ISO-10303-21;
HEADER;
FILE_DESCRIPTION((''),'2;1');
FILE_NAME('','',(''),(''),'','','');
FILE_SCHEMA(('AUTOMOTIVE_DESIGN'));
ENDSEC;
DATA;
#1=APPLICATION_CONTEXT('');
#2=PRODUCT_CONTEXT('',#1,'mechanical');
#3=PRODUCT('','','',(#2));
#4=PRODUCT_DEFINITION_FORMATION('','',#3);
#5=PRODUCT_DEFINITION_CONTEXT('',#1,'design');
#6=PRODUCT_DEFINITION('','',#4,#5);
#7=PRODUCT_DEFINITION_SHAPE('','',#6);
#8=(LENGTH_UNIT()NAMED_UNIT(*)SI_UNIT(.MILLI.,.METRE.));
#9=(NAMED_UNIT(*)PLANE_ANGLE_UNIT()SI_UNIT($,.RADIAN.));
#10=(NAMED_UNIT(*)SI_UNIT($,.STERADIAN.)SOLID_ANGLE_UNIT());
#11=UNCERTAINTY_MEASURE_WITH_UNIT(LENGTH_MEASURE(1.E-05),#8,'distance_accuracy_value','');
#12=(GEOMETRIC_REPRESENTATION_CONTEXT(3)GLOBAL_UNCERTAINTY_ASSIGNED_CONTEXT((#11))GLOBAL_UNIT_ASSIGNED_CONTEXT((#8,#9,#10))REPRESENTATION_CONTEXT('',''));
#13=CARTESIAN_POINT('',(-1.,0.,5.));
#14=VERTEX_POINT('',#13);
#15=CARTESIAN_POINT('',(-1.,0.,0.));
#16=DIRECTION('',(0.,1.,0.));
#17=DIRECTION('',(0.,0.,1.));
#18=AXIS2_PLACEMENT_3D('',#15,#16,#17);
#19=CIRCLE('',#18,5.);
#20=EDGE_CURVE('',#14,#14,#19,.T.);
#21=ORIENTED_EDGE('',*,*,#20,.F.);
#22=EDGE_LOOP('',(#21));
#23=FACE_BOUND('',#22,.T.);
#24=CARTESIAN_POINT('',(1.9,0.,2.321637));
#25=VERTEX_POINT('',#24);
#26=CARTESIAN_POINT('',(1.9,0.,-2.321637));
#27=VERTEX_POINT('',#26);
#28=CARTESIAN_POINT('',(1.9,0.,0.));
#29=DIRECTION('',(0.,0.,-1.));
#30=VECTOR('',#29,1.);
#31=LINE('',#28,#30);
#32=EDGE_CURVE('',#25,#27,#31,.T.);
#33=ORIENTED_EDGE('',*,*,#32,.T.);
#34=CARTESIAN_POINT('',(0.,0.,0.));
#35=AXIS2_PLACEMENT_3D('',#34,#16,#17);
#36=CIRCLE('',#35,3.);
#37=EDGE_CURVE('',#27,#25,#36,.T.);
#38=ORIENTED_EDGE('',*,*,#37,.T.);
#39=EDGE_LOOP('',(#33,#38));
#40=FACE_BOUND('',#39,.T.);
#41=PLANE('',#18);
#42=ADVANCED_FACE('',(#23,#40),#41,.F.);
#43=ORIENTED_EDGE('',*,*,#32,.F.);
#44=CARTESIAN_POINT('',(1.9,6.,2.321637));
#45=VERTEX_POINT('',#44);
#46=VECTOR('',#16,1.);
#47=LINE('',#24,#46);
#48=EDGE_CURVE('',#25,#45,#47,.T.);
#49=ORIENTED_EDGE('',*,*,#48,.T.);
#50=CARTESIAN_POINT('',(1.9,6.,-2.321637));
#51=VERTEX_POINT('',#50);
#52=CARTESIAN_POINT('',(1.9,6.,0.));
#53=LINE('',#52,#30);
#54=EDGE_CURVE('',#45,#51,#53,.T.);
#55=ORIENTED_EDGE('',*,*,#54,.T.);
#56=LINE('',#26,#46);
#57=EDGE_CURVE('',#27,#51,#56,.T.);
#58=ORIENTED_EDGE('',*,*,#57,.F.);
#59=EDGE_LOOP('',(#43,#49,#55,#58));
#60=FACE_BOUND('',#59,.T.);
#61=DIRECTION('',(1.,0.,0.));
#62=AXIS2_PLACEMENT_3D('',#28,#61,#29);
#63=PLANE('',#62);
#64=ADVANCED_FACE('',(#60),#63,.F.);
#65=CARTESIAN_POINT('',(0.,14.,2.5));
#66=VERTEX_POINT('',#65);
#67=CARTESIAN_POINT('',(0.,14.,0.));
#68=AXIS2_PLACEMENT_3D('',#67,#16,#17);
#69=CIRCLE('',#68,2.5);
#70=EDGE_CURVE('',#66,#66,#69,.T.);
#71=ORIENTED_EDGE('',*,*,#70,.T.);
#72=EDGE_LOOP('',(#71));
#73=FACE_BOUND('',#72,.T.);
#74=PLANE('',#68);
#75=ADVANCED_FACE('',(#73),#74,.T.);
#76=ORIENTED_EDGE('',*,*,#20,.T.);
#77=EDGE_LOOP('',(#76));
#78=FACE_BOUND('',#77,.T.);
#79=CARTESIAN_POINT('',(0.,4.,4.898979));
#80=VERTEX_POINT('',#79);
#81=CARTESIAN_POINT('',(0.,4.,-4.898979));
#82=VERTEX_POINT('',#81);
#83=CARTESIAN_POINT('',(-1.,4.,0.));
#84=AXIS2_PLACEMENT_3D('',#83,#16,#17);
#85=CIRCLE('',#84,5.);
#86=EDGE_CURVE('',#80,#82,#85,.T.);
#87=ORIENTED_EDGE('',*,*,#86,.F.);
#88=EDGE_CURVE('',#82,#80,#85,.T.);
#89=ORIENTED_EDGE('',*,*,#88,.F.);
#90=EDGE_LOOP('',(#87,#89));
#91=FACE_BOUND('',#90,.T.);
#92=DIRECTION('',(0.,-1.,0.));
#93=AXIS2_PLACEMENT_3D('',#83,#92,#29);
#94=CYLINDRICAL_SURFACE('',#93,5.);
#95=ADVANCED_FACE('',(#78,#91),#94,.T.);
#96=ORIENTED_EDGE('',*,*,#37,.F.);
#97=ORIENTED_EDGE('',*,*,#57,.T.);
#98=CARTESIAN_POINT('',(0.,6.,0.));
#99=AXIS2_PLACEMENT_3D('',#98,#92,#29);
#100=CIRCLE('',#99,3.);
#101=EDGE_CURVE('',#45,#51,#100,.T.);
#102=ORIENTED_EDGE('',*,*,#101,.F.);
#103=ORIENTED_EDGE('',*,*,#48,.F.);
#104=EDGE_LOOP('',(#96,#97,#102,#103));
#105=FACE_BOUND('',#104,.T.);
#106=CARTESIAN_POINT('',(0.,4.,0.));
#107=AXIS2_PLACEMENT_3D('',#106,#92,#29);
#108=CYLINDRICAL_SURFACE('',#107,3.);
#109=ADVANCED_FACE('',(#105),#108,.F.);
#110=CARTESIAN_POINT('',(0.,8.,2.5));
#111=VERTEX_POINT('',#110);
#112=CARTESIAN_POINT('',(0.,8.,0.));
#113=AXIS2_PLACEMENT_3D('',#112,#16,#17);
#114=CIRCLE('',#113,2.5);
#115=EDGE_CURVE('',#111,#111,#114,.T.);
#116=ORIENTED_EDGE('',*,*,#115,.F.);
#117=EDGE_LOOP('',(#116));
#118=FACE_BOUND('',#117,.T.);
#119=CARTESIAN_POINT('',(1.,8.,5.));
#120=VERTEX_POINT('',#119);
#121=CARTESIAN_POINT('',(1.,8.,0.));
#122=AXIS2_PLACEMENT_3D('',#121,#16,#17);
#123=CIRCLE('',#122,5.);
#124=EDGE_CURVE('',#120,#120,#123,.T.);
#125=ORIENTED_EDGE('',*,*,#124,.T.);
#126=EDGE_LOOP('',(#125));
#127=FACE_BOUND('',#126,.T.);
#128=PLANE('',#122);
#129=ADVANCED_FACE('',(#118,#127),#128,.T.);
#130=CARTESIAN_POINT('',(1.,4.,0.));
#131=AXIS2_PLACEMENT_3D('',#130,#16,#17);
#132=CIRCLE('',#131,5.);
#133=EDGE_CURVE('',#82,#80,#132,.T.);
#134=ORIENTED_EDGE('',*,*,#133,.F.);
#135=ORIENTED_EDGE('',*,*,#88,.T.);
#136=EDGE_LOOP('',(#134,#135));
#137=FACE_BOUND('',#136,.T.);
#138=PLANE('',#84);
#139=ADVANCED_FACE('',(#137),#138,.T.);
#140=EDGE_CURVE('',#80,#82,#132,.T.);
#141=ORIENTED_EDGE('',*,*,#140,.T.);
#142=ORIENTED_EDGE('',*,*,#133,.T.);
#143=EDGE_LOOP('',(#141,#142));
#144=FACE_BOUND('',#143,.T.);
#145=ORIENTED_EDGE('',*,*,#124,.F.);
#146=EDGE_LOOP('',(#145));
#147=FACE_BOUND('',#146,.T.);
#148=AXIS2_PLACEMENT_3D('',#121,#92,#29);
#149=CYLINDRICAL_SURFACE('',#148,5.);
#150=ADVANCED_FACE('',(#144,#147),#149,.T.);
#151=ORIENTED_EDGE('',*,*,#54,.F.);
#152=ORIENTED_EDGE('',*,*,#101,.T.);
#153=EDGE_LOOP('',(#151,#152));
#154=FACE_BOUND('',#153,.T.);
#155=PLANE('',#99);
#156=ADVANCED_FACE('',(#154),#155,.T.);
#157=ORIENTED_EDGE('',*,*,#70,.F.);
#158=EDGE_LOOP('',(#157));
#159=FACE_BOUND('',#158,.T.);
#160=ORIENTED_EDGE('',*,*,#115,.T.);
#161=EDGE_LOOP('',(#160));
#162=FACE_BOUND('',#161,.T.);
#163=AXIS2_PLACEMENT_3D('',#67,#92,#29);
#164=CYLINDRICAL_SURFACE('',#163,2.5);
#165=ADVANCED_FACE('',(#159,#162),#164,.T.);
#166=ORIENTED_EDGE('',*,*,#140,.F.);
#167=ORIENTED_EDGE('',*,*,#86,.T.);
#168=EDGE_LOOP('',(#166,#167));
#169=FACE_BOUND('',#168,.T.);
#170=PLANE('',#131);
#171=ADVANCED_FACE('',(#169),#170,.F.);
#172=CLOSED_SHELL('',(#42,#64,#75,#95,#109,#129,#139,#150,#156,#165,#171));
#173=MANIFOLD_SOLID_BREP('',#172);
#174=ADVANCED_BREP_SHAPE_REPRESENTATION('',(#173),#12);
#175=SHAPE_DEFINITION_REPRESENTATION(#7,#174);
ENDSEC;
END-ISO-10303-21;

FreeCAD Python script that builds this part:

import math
import FreeCAD as App
import Part
import Sketcher
from FreeCAD import Vector

doc = App.newDocument("Part")
params = doc.addObject("Spreadsheet::Sheet", "Params")
for row, (alias, value) in enumerate([
    ("sketch1_diameter", "10 mm"),
    ("sketch1_diameter2", "6 mm"),
    ("pad1_length", "4 mm"),
    ("sketch2_diameter", "10 mm"),
    ("pad2_length", "4 mm"),
    ("sketch3_diameter", "5 mm"),
    ("pad3_length", "6 mm"),
    ("sketch4_diameter", "6 mm"),
    ("pocket1_length", "2 mm"),
    ("sketch5_radius", "3 mm"),
    ("pad4_length", "6 mm"),
], start=1):
    params.set(f"A{row}", alias)
    params.set(f"B{row}", "=" + value)
    params.setAlias(f"B{row}", alias)

body = doc.addObject("PartDesign::Body", "Body")

# Sketch on XZ plane
sketch1 = body.newObject("Sketcher::SketchObject", "Sketch")
sketch1.AttachmentSupport = (doc.getObject("XZ_Plane"), [""])
sketch1.MapMode = "FlatFace"
sketch1.addGeometry(Part.Circle(Vector(-1, 0, 0), Vector(0, 0, 1), 5), False)
sketch1.addGeometry(Part.Circle(Vector(0, 0, 0), Vector(0, 0, 1), 3), False)
sketch1.addConstraint(Sketcher.Constraint("Coincident", 1, 3, -1, 1))
sketch1.addConstraint(Sketcher.Constraint("PointOnObject", 0, 3, -1))
sketch1.addConstraint(Sketcher.Constraint("Diameter", 0, 10.0))
sketch1.addConstraint(Sketcher.Constraint("Diameter", 1, 6.0))
sketch1.addConstraint(Sketcher.Constraint("DistanceX", 0, 3, -1, 1, 1.0))
sketch1.setExpression("Constraints[2]", "Params.sketch1_diameter")
sketch1.setExpression("Constraints[3]", "Params.sketch1_diameter2")
pad1 = body.newObject("PartDesign::Pad", "Pad")
pad1.Profile = sketch1
pad1.setExpression("Length", "Params.pad1_length")
pad1.Reversed = True

# Sketch on XZ plane
sketch2 = body.newObject("Sketcher::SketchObject", "Sketch001")
sketch2.AttachmentSupport = (doc.getObject("XZ_Plane"), [""])
sketch2.MapMode = "FlatFace"
sketch2.AttachmentOffset = App.Placement(Vector(0, 0, -4), App.Rotation())
sketch2.addGeometry(Part.Circle(Vector(1, 0, 0), Vector(0, 0, 1), 5), False)
sketch2.addConstraint(Sketcher.Constraint("PointOnObject", 0, 3, -1))
sketch2.addConstraint(Sketcher.Constraint("Diameter", 0, 10.0))
sketch2.addConstraint(Sketcher.Constraint("DistanceX", -1, 1, 0, 3, 1.0))
sketch2.setExpression("Constraints[1]", "Params.sketch2_diameter")
pad2 = body.newObject("PartDesign::Pad", "Pad001")
pad2.Profile = sketch2
pad2.setExpression("Length", "Params.pad2_length")
pad2.Reversed = True

# Sketch on XZ plane
sketch3 = body.newObject("Sketcher::SketchObject", "Sketch002")
sketch3.AttachmentSupport = (doc.getObject("XZ_Plane"), [""])
sketch3.MapMode = "FlatFace"
sketch3.AttachmentOffset = App.Placement(Vector(0, 0, -8), App.Rotation())
sketch3.addGeometry(Part.Circle(Vector(0, 0, 0), Vector(0, 0, 1), 2.5), False)
sketch3.addConstraint(Sketcher.Constraint("Coincident", 0, 3, -1, 1))
sketch3.addConstraint(Sketcher.Constraint("Diameter", 0, 5.0))
sketch3.setExpression("Constraints[1]", "Params.sketch3_diameter")
pad3 = body.newObject("PartDesign::Pad", "Pad002")
pad3.Profile = sketch3
pad3.setExpression("Length", "Params.pad3_length")
pad3.Reversed = True

# Sketch on XZ plane
sketch4 = body.newObject("Sketcher::SketchObject", "Sketch003")
sketch4.AttachmentSupport = (doc.getObject("XZ_Plane"), [""])
sketch4.MapMode = "FlatFace"
sketch4.AttachmentOffset = App.Placement(Vector(0, 0, -4), App.Rotation())
sketch4.addGeometry(Part.Circle(Vector(0, 0, 0), Vector(0, 0, 1), 3), False)
sketch4.addConstraint(Sketcher.Constraint("Coincident", 0, 3, -1, 1))
sketch4.addConstraint(Sketcher.Constraint("Diameter", 0, 6.0))
sketch4.setExpression("Constraints[1]", "Params.sketch4_diameter")
pocket1 = body.newObject("PartDesign::Pocket", "Pocket")
pocket1.Profile = sketch4
pocket1.setExpression("Length", "Params.pocket1_length")

# Sketch on XZ plane
sketch5 = body.newObject("Sketcher::SketchObject", "Sketch004")
sketch5.AttachmentSupport = (doc.getObject("XZ_Plane"), [""])
sketch5.MapMode = "FlatFace"
sketch5.AttachmentOffset = App.Placement(Vector(0, 0, -6), App.Rotation())
sketch5.addGeometry(Part.ArcOfCircle(Part.Circle(Vector(0, 0, 0), Vector(0, 0, 1), 3), math.radians(0), math.radians(50.70352)), False)
sketch5.addGeometry(Part.LineSegment(Vector(1.9, 2.321637, 0), Vector(1.9, -2.321637, 0)), False)
sketch5.addGeometry(Part.ArcOfCircle(Part.Circle(Vector(0, 0, 0), Vector(0, 0, 1), 3), math.radians(-50.70352), math.radians(0)), False)
sketch5.addConstraint(Sketcher.Constraint("Coincident", 0, 2, 1, 1))
sketch5.addConstraint(Sketcher.Constraint("Coincident", 1, 2, 2, 1))
sketch5.addConstraint(Sketcher.Constraint("Tangent", 2, 2, 0, 1))
sketch5.addConstraint(Sketcher.Constraint("Vertical", 1))
sketch5.addConstraint(Sketcher.Constraint("Coincident", 0, 3, -1, 1))
sketch5.addConstraint(Sketcher.Constraint("Equal", 0, 2))
sketch5.addConstraint(Sketcher.Constraint("PointOnObject", 2, 2, -1))
sketch5.addConstraint(Sketcher.Constraint("Radius", 0, 3.0))
sketch5.addConstraint(Sketcher.Constraint("DistanceX", -1, 1, 0, 2, 1.9))
sketch5.setExpression("Constraints[7]", "Params.sketch5_radius")
pad4 = body.newObject("PartDesign::Pad", "Pad003")
pad4.Profile = sketch5
pad4.setExpression("Length", "Params.pad4_length")

doc.recompute()
